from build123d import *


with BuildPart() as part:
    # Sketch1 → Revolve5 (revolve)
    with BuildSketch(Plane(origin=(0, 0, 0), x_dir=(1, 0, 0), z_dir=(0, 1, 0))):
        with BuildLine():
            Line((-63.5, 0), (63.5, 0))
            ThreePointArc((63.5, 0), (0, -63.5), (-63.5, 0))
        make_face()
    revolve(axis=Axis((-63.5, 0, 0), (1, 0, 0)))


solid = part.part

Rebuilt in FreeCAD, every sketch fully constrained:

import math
import FreeCAD as App
import Part
import Sketcher
Q = App.Units.Quantity

doc = App.newDocument("Part")
body = doc.addObject("PartDesign::Body", "Body")

# Sketch on XZ plane
sketch1 = doc.addObject("Sketcher::SketchObject", "Sketch")
body.addObject(sketch1)
sketch1.AttachmentSupport = (doc.XZ_Plane, [""])
sketch1.MapMode = "FlatFace"
sketch1.addGeometry(Part.LineSegment(App.Vector(64, 0, 0), App.Vector(-64, 0, 0)), False)
sketch1.addGeometry(Part.ArcOfCircle(Part.Circle(App.Vector(0, 0, 0), App.Vector(0, 0, 1), 64), math.radians(0), math.radians(180)), False)
sketch1.addConstraint(Sketcher.Constraint("Coincident", 0, 1, 1, 1))
sketch1.addConstraint(Sketcher.Constraint("Coincident", 1, 2, 0, 2))
sketch1.addConstraint(Sketcher.Constraint("Horizontal", 0))
sketch1.addConstraint(Sketcher.Constraint("Coincident", 1, 3, -1, 1))
sketch1.addConstraint(Sketcher.Constraint("PointOnObject", 0, 1, -1))
sketch1.addConstraint(Sketcher.Constraint("Radius", 1, Q("2.5 in")))
revolution = doc.addObject("PartDesign::Revolution", "Revolution")
body.addObject(revolution)
revolution.Profile = sketch1
revolution.ReferenceAxis = (sketch1, ["H_Axis"])
revolution.Angle = 360

doc.recompute()
